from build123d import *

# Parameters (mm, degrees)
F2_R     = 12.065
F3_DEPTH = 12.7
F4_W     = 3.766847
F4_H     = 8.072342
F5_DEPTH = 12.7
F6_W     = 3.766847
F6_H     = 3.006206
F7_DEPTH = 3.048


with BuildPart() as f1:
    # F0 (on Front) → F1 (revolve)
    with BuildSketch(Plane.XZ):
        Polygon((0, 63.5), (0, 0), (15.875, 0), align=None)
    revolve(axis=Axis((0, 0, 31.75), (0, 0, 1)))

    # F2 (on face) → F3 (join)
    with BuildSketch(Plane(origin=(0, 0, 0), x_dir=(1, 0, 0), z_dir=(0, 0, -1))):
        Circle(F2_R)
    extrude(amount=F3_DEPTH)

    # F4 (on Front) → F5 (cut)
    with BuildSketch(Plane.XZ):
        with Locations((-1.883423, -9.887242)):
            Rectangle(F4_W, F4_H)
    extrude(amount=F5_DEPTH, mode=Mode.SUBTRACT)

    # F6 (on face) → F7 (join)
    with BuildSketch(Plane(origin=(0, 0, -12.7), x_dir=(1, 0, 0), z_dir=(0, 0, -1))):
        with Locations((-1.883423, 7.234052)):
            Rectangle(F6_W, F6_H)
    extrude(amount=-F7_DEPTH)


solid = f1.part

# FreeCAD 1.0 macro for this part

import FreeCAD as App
import Part
import Sketcher

V = App.Vector
Q = App.Units.Quantity

doc = App.newDocument("Part")
body = doc.addObject("PartDesign::Body", "Body")

sketch1 = body.newObject("Sketcher::SketchObject", "Sketch")
sketch1.AttachmentSupport = (doc.getObject("XZ_Plane"), [""])
sketch1.MapMode = "FlatFace"
sketch1.addGeometry([
    Part.LineSegment(V(0, 64, 0), V(0, 0, 0)),
    Part.LineSegment(V(0, 0, 0), V(16, 0, 0)),
    Part.LineSegment(V(16, 0, 0), V(0, 64, 0)),
], False)
sketch1.addConstraint([
    Sketcher.Constraint("Coincident", 0, 2, 1, 1),
    Sketcher.Constraint("Coincident", 1, 2, 2, 1),
    Sketcher.Constraint("Coincident", 2, 2, 0, 1),
    Sketcher.Constraint("Vertical", 0),
    Sketcher.Constraint("Horizontal", 1),
    Sketcher.Constraint("Coincident", 0, 2, -1, 1),
    Sketcher.Constraint("DistanceY", 0, 2, 0, 1, Q("2.5 in")),
    Sketcher.Constraint("DistanceX", 1, 1, 1, 2, Q("0.625 in")),
])
revolution = body.newObject("PartDesign::Revolution", "Revolution")
revolution.Profile = sketch1
revolution.ReferenceAxis = (sketch1, ["V_Axis"])
revolution.Angle = 360

sketch2 = body.newObject("Sketcher::SketchObject", "Sketch001")
sketch2.AttachmentSupport = (doc.getObject("XY_Plane"), [""])
sketch2.MapMode = "FlatFace"
sketch2.addGeometry(Part.Circle(V(0, 0, 0), V(0, 0, 1), 12), False)
sketch2.addConstraint([
    Sketcher.Constraint("Coincident", 0, 3, -1, 1),
    Sketcher.Constraint("Diameter", 0, Q("0.95 in")),
])
pad1 = body.newObject("PartDesign::Pad", "Pad")
pad1.Profile = sketch2
pad1.Length = Q("0.5 in")
pad1.Reversed = True

sketch3 = body.newObject("Sketcher::SketchObject", "Sketch002")
sketch3.AttachmentSupport = (doc.getObject("XZ_Plane"), [""])
sketch3.MapMode = "FlatFace"
sketch3.addGeometry([
    Part.LineSegment(V(-3.8, -5.9, 0), V(-3.8, -13.9, 0)),
    Part.LineSegment(V(-3.8, -13.9, 0), V(0, -13.9, 0)),
    Part.LineSegment(V(0, -13.9, 0), V(0, -5.9, 0)),
    Part.LineSegment(V(0, -5.9, 0), V(-3.8, -5.9, 0)),
], False)
sketch3.addConstraint([
    Sketcher.Constraint("Coincident", 0, 2, 1, 1),
    Sketcher.Constraint("Coincident", 1, 2, 2, 1),
    Sketcher.Constraint("Coincident", 2, 2, 3, 1),
    Sketcher.Constraint("Coincident", 3, 2, 0, 1),
    Sketcher.Constraint("Vertical", 0),
    Sketcher.Constraint("Horizontal", 1),
    Sketcher.Constraint("Vertical", 2),
    Sketcher.Constraint("Horizontal", 3),
    Sketcher.Constraint("PointOnObject", 1, 2, -2),
    Sketcher.Constraint("DistanceY", 0, 2, 0, 1, Q("8.072342 mm")),
    Sketcher.Constraint("DistanceX", 1, 1, 1, 2, Q("3.766847 mm")),
    Sketcher.Constraint("DistanceY", 2, 2, -1, 1, Q("5.851071 mm")),
])
pocket1 = body.newObject("PartDesign::Pocket", "Pocket")
pocket1.Profile = sketch3
pocket1.Length = Q("0.5 in")
pocket1.Reversed = True

sketch4 = body.newObject("Sketcher::SketchObject", "Sketch003")
sketch4.AttachmentSupport = (doc.getObject("XY_Plane"), [""])
sketch4.MapMode = "FlatFace"
sketch4.AttachmentOffset = App.Placement(V(0, 0, -0.5 * 25.4), App.Rotation())
sketch4.addGeometry([
    Part.LineSegment(V(-3.8, -8.7, 0), V(-3.8, -5.7, 0)),
    Part.LineSegment(V(-3.8, -5.7, 0), V(0, -5.7, 0)),
    Part.LineSegment(V(0, -5.7, 0), V(0, -8.7, 0)),
    Part.LineSegment(V(0, -8.7, 0), V(-3.8, -8.7, 0)),
], False)
sketch4.addConstraint([
    Sketcher.Constraint("Coincident", 0, 2, 1, 1),
    Sketcher.Constraint("Coincident", 1, 2, 2, 1),
    Sketcher.Constraint("Coincident", 2, 2, 3, 1),
    Sketcher.Constraint("Coincident", 3, 2, 0, 1),
    Sketcher.Constraint("Vertical", 0),
    Sketcher.Constraint("Horizontal", 1),
    Sketcher.Constraint("Vertical", 2),
    Sketcher.Constraint("Horizontal", 3),
    Sketcher.Constraint("PointOnObject", 1, 2, -2),
    Sketcher.Constraint("DistanceX", 1, 1, 1, 2, Q("3.766847 mm")),
    Sketcher.Constraint("DistanceY", 0, 1, 0, 2, Q("3.006206 mm")),
    Sketcher.Constraint("DistanceY", 0, 2, -1, 1, Q("5.730949 mm")),
])
pad2 = body.newObject("PartDesign::Pad", "Pad001")
pad2.Profile = sketch4
pad2.Length = Q("0.12 in")

doc.recompute()
